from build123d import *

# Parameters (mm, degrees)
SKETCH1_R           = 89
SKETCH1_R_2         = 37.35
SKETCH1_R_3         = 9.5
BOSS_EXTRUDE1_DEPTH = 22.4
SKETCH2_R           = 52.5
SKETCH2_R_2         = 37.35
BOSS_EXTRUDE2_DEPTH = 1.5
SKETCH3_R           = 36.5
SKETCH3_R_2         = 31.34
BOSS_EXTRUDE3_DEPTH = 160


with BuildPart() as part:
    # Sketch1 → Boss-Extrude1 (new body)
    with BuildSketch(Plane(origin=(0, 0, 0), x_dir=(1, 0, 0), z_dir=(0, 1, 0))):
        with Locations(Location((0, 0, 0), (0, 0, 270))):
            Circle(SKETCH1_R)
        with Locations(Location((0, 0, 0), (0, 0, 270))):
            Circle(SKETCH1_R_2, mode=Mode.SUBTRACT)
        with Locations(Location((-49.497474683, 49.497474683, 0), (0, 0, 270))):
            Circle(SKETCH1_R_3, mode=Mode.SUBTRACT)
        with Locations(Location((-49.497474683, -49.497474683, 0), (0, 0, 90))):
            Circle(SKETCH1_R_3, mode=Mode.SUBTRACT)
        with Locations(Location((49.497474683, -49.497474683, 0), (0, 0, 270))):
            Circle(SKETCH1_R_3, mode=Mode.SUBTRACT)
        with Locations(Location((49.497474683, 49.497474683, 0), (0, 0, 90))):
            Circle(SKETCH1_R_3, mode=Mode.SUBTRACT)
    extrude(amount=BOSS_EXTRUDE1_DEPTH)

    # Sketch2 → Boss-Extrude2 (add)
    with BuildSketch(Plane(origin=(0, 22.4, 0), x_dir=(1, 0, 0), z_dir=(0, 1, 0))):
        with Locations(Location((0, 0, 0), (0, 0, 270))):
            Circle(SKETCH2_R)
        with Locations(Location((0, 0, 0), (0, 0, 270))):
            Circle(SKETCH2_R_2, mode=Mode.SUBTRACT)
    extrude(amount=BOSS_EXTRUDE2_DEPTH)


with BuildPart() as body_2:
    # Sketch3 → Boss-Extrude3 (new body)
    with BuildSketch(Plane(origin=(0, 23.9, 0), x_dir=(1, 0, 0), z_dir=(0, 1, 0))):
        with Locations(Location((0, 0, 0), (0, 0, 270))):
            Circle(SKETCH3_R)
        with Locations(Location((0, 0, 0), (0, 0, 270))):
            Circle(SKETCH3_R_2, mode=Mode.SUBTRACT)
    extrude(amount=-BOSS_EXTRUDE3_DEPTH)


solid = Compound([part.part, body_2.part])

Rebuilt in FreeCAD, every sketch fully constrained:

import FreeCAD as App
import Part
import Sketcher
Q = App.Units.Quantity

doc = App.newDocument("Part")
body = doc.addObject("PartDesign::Body", "Body")

sketch1 = body.newObject("Sketcher::SketchObject", "Sketch")
sketch1.AttachmentSupport = (doc.getObject("XZ_Plane"), [""])
sketch1.MapMode = "FlatFace"
sketch1.addGeometry(Part.Circle(App.Vector(0, 0, 0), App.Vector(0, 0, 1), 89), False)
sketch1.addGeometry(Part.Circle(App.Vector(-49, -49, 0), App.Vector(0, 0, 1), 10), False)
sketch1.addGeometry(Part.Circle(App.Vector(-49, 49, 0), App.Vector(0, 0, 1), 10), False)
sketch1.addGeometry(Part.Circle(App.Vector(49, -49, 0), App.Vector(0, 0, 1), 10), False)
sketch1.addGeometry(Part.Circle(App.Vector(0, 0, 0), App.Vector(0, 0, 1), 37), False)
sketch1.addGeometry(Part.Circle(App.Vector(49, 49, 0), App.Vector(0, 0, 1), 10), False)
sketch1.addConstraint(Sketcher.Constraint("Coincident", 0, 3, -1, 1))
sketch1.addConstraint(Sketcher.Constraint("Coincident", 4, 3, -1, 1))
sketch1.addConstraint(Sketcher.Constraint("Equal", 1, 2))
sketch1.addConstraint(Sketcher.Constraint("Equal", 2, 3))
sketch1.addConstraint(Sketcher.Constraint("Equal", 3, 5))
sketch1.addConstraint(Sketcher.Constraint("Symmetric", 2, 3, 3, 3, -1, 1))
sketch1.addConstraint(Sketcher.Constraint("Symmetric", 1, 3, 5, 3, -1, 1))
sketch1.addConstraint(Sketcher.Constraint("Symmetric", 1, 3, 3, 3, -2))
sketch1.addConstraint(Sketcher.Constraint("Diameter", 0, Q("178 mm")))
sketch1.addConstraint(Sketcher.Constraint("Diameter", 1, Q("19 mm")))
sketch1.addConstraint(Sketcher.Constraint("Diameter", 4, Q("74.7 mm")))
sketch1.addConstraint(Sketcher.Constraint("DistanceY", 1, 3, 2, 3, Q("98.994949 mm")))
sketch1.addConstraint(Sketcher.Constraint("DistanceX", 1, 3, 3, 3, Q("98.994949 mm")))
pad1 = body.newObject("PartDesign::Pad", "Pad")
pad1.Profile = sketch1
pad1.Length = 22.4
pad1.Reversed = True

sketch2 = body.newObject("Sketcher::SketchObject", "Sketch001")
sketch2.AttachmentSupport = (doc.getObject("XZ_Plane"), [""])
sketch2.MapMode = "FlatFace"
sketch2.AttachmentOffset = App.Placement(App.Vector(0, 0, -22.4), App.Rotation())
sketch2.addGeometry(Part.Circle(App.Vector(0, 0, 0), App.Vector(0, 0, 1), 52), False)
sketch2.addGeometry(Part.Circle(App.Vector(0, 0, 0), App.Vector(0, 0, 1), 37), False)
sketch2.addConstraint(Sketcher.Constraint("Coincident", 0, 3, -1, 1))
sketch2.addConstraint(Sketcher.Constraint("Coincident", 1, 3, -1, 1))
sketch2.addConstraint(Sketcher.Constraint("Diameter", 0, Q("105 mm")))
sketch2.addConstraint(Sketcher.Constraint("Diameter", 1, Q("74.7 mm")))
pad2 = body.newObject("PartDesign::Pad", "Pad001")
pad2.Profile = sketch2
pad2.Length = 1.5
pad2.Reversed = True
body2 = doc.addObject("PartDesign::Body", "Body001")

sketch3 = body2.newObject("Sketcher::SketchObject", "Sketch002")
sketch3.AttachmentSupport = (doc.getObject("XZ_Plane001"), [""])
sketch3.MapMode = "FlatFace"
sketch3.AttachmentOffset = App.Placement(App.Vector(0, 0, -23.9), App.Rotation())
sketch3.addGeometry(Part.Circle(App.Vector(0, 0, 0), App.Vector(0, 0, 1), 36), False)
sketch3.addGeometry(Part.Circle(App.Vector(0, 0, 0), App.Vector(0, 0, 1), 31), False)
sketch3.addConstraint(Sketcher.Constraint("Coincident", 0, 3, -1, 1))
sketch3.addConstraint(Sketcher.Constraint("Coincident", 1, 3, -1, 1))
sketch3.addConstraint(Sketcher.Constraint("Diameter", 0, Q("73 mm")))
sketch3.addConstraint(Sketcher.Constraint("Diameter", 1, Q("62.68 mm")))
pad3 = body2.newObject("PartDesign::Pad", "Pad002")
pad3.Profile = sketch3
pad3.Length = 160

doc.recompute()
